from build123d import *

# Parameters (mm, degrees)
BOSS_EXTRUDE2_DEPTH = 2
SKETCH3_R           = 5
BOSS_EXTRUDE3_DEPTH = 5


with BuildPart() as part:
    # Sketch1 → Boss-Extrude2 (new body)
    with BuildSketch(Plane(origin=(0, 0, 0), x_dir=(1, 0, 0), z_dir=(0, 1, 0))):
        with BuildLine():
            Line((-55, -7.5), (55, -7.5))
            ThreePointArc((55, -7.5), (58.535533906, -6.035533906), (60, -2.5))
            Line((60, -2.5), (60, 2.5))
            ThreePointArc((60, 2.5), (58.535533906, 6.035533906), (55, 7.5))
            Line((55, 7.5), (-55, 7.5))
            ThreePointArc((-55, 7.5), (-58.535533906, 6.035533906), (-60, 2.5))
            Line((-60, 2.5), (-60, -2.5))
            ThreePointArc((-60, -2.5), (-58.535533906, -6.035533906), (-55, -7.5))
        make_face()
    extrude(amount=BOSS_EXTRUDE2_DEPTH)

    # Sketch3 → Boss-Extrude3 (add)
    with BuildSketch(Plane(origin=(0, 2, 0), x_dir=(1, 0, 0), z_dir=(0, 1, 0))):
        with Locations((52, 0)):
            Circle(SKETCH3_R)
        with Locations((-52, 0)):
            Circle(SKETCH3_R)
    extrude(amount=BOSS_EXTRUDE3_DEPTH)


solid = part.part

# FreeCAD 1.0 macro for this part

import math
import FreeCAD as App
import Part
import Sketcher

V = App.Vector

doc = App.newDocument("Part")
body = doc.addObject("PartDesign::Body", "Body")

sketch1 = body.newObject("Sketcher::SketchObject", "Sketch")
sketch1.AttachmentSupport = (doc.getObject("XZ_Plane"), [""])
sketch1.MapMode = "FlatFace"
sketch1.addGeometry([
    Part.LineSegment(V(-55, 7.5, 0), V(55, 7.5, 0)),
    Part.ArcOfCircle(Part.Circle(V(55, 2.5, 0), V(0, 0, 1), 5), math.radians(0), math.radians(90)),
    Part.LineSegment(V(60, 2.5, 0), V(60, -2.5, 0)),
    Part.ArcOfCircle(Part.Circle(V(55, -2.5, 0), V(0, 0, 1), 5), math.radians(-90), math.radians(0)),
    Part.LineSegment(V(55, -7.5, 0), V(-55, -7.5, 0)),
    Part.ArcOfCircle(Part.Circle(V(-55, -2.5, 0), V(0, 0, 1), 5), math.radians(180), math.radians(270)),
    Part.LineSegment(V(-60, -2.5, 0), V(-60, 2.5, 0)),
    Part.ArcOfCircle(Part.Circle(V(-55, 2.5, 0), V(0, 0, 1), 5), math.radians(90), math.radians(180)),
], False)
sketch1.addConstraint([
    Sketcher.Constraint("Tangent", 0, 2, 1, 2),
    Sketcher.Constraint("Tangent", 1, 1, 2, 1),
    Sketcher.Constraint("Tangent", 2, 2, 3, 2),
    Sketcher.Constraint("Tangent", 3, 1, 4, 1),
    Sketcher.Constraint("Tangent", 4, 2, 5, 2),
    Sketcher.Constraint("Tangent", 5, 1, 6, 1),
    Sketcher.Constraint("Tangent", 6, 2, 7, 2),
    Sketcher.Constraint("Tangent", 7, 1, 0, 1),
    Sketcher.Constraint("Horizontal", 0),
    Sketcher.Constraint("Vertical", 2),
    Sketcher.Constraint("Horizontal", 4),
    Sketcher.Constraint("Vertical", 6),
    Sketcher.Constraint("Equal", 1, 3),
    Sketcher.Constraint("Equal", 3, 5),
    Sketcher.Constraint("Equal", 5, 7),
    Sketcher.Constraint("Symmetric", 1, 3, 5, 3, -1, 1),
    Sketcher.Constraint("Radius", 1, 5.0),
    Sketcher.Constraint("DistanceX", 0, 1, 0, 2, 110.0),
    Sketcher.Constraint("DistanceY", 2, 2, 2, 1, 5.0),
])
pad1 = body.newObject("PartDesign::Pad", "Pad")
pad1.Profile = sketch1
pad1.Length = 2
pad1.Reversed = True

sketch2 = body.newObject("Sketcher::SketchObject", "Sketch001")
sketch2.AttachmentSupport = (doc.getObject("XZ_Plane"), [""])
sketch2.MapMode = "FlatFace"
sketch2.AttachmentOffset = App.Placement(V(0, 0, -2), App.Rotation())
sketch2.addGeometry([
    Part.Circle(V(52, 0, 0), V(0, 0, 1), 5),
    Part.Circle(V(-52, 0, 0), V(0, 0, 1), 5),
], False)
sketch2.addConstraint([
    Sketcher.Constraint("Equal", 0, 1),
    Sketcher.Constraint("Symmetric", 0, 3, 1, 3, -1, 1),
    Sketcher.Constraint("PointOnObject", 0, 3, -1),
    Sketcher.Constraint("Diameter", 0, 10.0),
    Sketcher.Constraint("DistanceX", -1, 1, 0, 3, 52.0),
])
pad2 = body.newObject("PartDesign::Pad", "Pad001")
pad2.Profile = sketch2
pad2.Length = 5
pad2.Reversed = True

doc.recompute()
